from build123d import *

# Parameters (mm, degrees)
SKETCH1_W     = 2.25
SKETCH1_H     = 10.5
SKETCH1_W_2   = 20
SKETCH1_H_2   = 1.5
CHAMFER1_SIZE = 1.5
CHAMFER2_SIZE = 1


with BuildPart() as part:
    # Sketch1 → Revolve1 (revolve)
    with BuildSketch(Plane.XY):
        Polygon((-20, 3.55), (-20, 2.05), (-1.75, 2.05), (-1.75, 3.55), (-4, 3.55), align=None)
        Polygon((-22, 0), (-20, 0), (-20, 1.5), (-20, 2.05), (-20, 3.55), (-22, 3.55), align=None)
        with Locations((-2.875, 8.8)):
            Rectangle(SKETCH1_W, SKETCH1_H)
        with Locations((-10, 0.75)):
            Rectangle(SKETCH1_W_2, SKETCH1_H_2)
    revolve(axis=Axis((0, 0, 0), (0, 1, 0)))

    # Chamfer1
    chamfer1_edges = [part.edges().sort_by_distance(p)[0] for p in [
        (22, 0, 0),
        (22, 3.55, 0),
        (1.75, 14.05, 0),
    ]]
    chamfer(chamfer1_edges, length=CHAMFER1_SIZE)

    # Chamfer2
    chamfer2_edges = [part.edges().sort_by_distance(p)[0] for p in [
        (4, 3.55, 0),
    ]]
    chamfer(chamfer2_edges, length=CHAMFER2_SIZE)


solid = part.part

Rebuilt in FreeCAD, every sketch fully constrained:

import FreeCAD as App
import Part
import Sketcher

V = App.Vector


def edges_at(feature, points):
    """Names of the edges that pass closest to the given points."""
    edges = feature.Shape.Edges
    near = lambda p: min(range(len(edges)), key=lambda i: edges[i].distToShape(Part.Vertex(*p))[0])
    return sorted({f"Edge{near(p) + 1}" for p in points})


def add_polygon(sketch, points):
    """Adds a closed chain of lines whose ends are joined by coincident constraints."""
    first, n = sketch.GeometryCount, len(points)
    for a, b in zip(points, points[1:] + points[:1]):
        sketch.addGeometry(Part.LineSegment(App.Vector(*a, 0), App.Vector(*b, 0)), False)
    for i in range(n):
        sketch.addConstraint(Sketcher.Constraint("Coincident", first + i, 2, first + (i + 1) % n, 1))

doc = App.newDocument("Part")
params = doc.addObject("Spreadsheet::Sheet", "Params")
for row, (alias, value) in enumerate([
    ("sketch1_width", "18 mm"),
    ("sketch1_width2", "22 mm"),
    ("sketch1_width3", "20 mm"),
    ("sketch1_height", "12 mm"),
    ("sketch1_height2", "10.5 mm"),
    ("revolution_angle", "360 deg"),
    ("chamfer_size", "1.5 mm"),
    ("chamfer2_size", "1 mm"),
], start=1):
    params.set(f"A{row}", alias)
    params.set(f"B{row}", "=" + value)
    params.setAlias(f"B{row}", alias)

body = doc.addObject("PartDesign::Body", "Body")

sketch1 = body.newObject("Sketcher::SketchObject", "Sketch")
sketch1.AttachmentSupport = (doc.getObject("XY_Plane"), [""])
sketch1.MapMode = "FlatFace"
add_polygon(sketch1, [(-20, 2), (-1.8, 2), (-1.8, 14.1), (-4, 14.1), (-4, 3.5), (-22, 3.5), (-22, 0), (0, 0), (0, 1.5), (-20, 1.5)])
sketch1.addConstraint(Sketcher.Constraint("Horizontal", 0))
sketch1.addConstraint(Sketcher.Constraint("Vertical", 1))
sketch1.addConstraint(Sketcher.Constraint("Horizontal", 2))
sketch1.addConstraint(Sketcher.Constraint("Vertical", 3))
sketch1.addConstraint(Sketcher.Constraint("Horizontal", 4))
sketch1.addConstraint(Sketcher.Constraint("Vertical", 5))
sketch1.addConstraint(Sketcher.Constraint("Horizontal", 6))
sketch1.addConstraint(Sketcher.Constraint("Vertical", 7))
sketch1.addConstraint(Sketcher.Constraint("Horizontal", 8))
sketch1.addConstraint(Sketcher.Constraint("Vertical", 9))
sketch1.addConstraint(Sketcher.Constraint("Coincident", 6, 2, -1, 1))
sketch1.addConstraint(Sketcher.Constraint("DistanceX", 4, 2, 4, 1, 18.0))
sketch1.addConstraint(Sketcher.Constraint("DistanceX", 6, 1, 6, 2, 22.0))
sketch1.addConstraint(Sketcher.Constraint("DistanceX", 8, 2, 8, 1, 20.0))
sketch1.addConstraint(Sketcher.Constraint("DistanceY", 1, 1, 1, 2, 12.0))
sketch1.addConstraint(Sketcher.Constraint("DistanceY", 3, 2, 3, 1, 10.5))
sketch1.addConstraint(Sketcher.Constraint("DistanceY", 7, 1, 7, 2, 1.5))
sketch1.addConstraint(Sketcher.Constraint("DistanceX", 0, 1, 0, 2, 18.25))
sketch1.addConstraint(Sketcher.Constraint("DistanceY", 5, 2, 5, 1, 3.55))
sketch1.setExpression("Constraints[21]", "Params.sketch1_width")
sketch1.setExpression("Constraints[22]", "Params.sketch1_width2")
sketch1.setExpression("Constraints[23]", "Params.sketch1_width3")
sketch1.setExpression("Constraints[24]", "Params.sketch1_height")
sketch1.setExpression("Constraints[25]", "Params.sketch1_height2")
revolution = body.newObject("PartDesign::Revolution", "Revolution")
revolution.Profile = sketch1
revolution.ReferenceAxis = (sketch1, ["V_Axis"])
revolution.setExpression("Angle", "Params.revolution_angle")
doc.recompute()

chamfer = body.newObject("PartDesign::Chamfer", "Chamfer")
chamfer.Base = (revolution, edges_at(revolution, [(22, 0, 0), (22, 3.55, 0), (1.75, 14.05, 0)]))
chamfer.setExpression("Size", "Params.chamfer_size")
doc.recompute()

chamfer2 = body.newObject("PartDesign::Chamfer", "Chamfer001")
chamfer2.Base = (chamfer, edges_at(chamfer, [(4, 3.55, 0)]))
chamfer2.setExpression("Size", "Params.chamfer2_size")

doc.recompute()
